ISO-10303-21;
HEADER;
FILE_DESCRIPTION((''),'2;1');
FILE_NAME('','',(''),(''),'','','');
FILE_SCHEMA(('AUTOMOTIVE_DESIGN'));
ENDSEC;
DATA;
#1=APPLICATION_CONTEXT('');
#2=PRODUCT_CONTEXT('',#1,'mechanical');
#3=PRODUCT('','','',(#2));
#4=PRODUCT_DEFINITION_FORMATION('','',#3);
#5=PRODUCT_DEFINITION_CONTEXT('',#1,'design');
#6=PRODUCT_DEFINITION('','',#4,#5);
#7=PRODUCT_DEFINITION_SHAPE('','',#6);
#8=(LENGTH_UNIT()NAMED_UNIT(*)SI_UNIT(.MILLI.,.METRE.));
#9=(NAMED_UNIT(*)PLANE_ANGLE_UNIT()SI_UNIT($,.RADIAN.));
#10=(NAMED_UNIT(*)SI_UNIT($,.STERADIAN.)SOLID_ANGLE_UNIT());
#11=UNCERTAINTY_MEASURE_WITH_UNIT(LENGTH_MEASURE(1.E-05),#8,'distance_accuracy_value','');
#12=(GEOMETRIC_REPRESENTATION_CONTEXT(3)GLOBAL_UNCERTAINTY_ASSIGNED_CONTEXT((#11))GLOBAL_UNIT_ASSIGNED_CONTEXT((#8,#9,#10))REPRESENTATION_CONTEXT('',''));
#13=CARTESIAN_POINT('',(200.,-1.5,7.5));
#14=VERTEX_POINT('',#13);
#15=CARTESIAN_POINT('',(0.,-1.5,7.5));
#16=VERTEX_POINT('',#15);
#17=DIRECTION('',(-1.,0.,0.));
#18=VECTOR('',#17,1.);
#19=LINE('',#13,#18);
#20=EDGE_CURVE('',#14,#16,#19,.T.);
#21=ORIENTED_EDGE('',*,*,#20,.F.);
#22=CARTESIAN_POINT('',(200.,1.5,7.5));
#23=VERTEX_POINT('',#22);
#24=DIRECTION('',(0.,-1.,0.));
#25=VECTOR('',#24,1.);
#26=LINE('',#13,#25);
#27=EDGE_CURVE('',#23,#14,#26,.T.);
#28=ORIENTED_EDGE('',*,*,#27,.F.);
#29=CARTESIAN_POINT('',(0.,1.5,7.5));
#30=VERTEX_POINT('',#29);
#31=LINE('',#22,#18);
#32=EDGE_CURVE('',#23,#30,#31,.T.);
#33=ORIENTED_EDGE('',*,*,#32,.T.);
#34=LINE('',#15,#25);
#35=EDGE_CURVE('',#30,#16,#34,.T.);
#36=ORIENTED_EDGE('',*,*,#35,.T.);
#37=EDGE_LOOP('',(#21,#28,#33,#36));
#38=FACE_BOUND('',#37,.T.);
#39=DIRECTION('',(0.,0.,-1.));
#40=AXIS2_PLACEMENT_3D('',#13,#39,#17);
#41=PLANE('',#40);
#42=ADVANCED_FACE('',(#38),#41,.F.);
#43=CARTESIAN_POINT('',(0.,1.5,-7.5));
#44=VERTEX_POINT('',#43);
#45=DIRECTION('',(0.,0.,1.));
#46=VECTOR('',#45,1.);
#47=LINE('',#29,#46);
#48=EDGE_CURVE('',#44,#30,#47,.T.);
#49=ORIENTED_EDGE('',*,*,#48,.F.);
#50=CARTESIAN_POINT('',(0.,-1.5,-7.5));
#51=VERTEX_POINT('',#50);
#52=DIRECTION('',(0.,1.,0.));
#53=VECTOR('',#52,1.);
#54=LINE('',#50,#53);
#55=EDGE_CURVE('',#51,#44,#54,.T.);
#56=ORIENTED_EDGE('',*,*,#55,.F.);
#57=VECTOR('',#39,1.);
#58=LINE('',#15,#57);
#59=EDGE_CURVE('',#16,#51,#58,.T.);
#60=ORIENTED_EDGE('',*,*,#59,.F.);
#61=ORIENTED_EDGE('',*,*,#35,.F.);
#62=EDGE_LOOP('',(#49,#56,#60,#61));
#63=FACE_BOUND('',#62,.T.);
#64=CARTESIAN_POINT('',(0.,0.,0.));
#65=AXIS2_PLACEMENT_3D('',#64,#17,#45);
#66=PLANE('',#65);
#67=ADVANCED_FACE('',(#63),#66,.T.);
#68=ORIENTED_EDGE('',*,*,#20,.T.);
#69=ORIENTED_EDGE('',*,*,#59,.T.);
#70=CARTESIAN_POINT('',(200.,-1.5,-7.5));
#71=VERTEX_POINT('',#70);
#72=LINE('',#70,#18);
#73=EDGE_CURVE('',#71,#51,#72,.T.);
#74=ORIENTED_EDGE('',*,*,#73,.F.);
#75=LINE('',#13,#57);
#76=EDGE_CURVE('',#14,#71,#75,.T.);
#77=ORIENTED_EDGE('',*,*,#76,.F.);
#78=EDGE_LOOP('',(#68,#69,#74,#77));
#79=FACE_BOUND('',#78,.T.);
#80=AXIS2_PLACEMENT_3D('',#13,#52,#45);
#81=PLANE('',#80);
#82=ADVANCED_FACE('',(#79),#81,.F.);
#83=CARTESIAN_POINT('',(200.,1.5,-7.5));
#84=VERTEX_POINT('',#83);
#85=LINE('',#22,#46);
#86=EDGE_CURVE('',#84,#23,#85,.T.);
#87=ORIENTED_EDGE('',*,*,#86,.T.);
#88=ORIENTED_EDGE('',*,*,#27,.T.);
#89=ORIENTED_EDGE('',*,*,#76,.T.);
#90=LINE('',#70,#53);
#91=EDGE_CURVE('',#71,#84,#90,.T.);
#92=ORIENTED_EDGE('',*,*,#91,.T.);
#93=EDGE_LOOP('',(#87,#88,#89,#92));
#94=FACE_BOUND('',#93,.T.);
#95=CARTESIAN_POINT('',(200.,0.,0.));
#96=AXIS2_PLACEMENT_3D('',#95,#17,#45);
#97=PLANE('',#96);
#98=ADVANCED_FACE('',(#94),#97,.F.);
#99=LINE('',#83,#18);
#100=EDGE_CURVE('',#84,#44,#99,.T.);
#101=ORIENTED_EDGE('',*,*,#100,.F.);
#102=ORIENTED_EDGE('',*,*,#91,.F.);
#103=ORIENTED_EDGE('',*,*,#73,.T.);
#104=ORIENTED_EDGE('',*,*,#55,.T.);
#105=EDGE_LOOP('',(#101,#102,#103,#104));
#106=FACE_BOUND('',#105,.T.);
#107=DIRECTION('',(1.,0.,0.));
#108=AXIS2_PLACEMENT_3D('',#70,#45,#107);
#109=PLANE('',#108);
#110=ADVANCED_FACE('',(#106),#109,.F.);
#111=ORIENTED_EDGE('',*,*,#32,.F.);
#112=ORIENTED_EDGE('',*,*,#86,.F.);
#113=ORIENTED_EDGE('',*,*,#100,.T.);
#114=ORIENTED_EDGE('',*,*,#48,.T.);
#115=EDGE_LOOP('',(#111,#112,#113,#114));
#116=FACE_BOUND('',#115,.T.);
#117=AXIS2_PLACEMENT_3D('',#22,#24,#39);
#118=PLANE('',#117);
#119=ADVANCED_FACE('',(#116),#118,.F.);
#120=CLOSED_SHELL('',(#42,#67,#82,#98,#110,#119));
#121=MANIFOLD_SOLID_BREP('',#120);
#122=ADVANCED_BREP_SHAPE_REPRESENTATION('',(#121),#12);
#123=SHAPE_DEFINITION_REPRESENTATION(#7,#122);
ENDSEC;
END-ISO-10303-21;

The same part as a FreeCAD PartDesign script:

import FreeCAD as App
import Part
import Sketcher
from FreeCAD import Vector


def add_polygon(sketch, points):
    """Adds a closed chain of lines whose ends are joined by coincident constraints."""
    first, n = sketch.GeometryCount, len(points)
    for a, b in zip(points, points[1:] + points[:1]):
        sketch.addGeometry(Part.LineSegment(App.Vector(*a, 0), App.Vector(*b, 0)), False)
    for i in range(n):
        sketch.addConstraint(Sketcher.Constraint("Coincident", first + i, 2, first + (i + 1) % n, 1))

doc = App.newDocument("Part")
body = doc.addObject("PartDesign::Body", "Body")

# Sketch on YZ plane
sketch1 = body.newObject("Sketcher::SketchObject", "Sketch")
sketch1.AttachmentSupport = (doc.getObject("YZ_Plane"), [""])
sketch1.MapMode = "FlatFace"
add_polygon(sketch1, [(1.5, 7.5), (-1.5, 7.5), (-1.5, -7.5), (1.5, -7.5)])  # lines 0-3
sketch1.addConstraint([
    Sketcher.Constraint("Horizontal", 0),
    Sketcher.Constraint("Vertical", 1),
    Sketcher.Constraint("Horizontal", 2),
    Sketcher.Constraint("Vertical", 3),
    Sketcher.Constraint("Symmetric", 0, 2, 2, 2, -1, 1),
    Sketcher.Constraint("DistanceX", 0, 2, 0, 1, 3.0),
    Sketcher.Constraint("DistanceY", 1, 2, 1, 1, 15.0),
])
pad1 = body.newObject("PartDesign::Pad", "Pad")
pad1.Profile = sketch1
pad1.Length = 200

doc.recompute()
